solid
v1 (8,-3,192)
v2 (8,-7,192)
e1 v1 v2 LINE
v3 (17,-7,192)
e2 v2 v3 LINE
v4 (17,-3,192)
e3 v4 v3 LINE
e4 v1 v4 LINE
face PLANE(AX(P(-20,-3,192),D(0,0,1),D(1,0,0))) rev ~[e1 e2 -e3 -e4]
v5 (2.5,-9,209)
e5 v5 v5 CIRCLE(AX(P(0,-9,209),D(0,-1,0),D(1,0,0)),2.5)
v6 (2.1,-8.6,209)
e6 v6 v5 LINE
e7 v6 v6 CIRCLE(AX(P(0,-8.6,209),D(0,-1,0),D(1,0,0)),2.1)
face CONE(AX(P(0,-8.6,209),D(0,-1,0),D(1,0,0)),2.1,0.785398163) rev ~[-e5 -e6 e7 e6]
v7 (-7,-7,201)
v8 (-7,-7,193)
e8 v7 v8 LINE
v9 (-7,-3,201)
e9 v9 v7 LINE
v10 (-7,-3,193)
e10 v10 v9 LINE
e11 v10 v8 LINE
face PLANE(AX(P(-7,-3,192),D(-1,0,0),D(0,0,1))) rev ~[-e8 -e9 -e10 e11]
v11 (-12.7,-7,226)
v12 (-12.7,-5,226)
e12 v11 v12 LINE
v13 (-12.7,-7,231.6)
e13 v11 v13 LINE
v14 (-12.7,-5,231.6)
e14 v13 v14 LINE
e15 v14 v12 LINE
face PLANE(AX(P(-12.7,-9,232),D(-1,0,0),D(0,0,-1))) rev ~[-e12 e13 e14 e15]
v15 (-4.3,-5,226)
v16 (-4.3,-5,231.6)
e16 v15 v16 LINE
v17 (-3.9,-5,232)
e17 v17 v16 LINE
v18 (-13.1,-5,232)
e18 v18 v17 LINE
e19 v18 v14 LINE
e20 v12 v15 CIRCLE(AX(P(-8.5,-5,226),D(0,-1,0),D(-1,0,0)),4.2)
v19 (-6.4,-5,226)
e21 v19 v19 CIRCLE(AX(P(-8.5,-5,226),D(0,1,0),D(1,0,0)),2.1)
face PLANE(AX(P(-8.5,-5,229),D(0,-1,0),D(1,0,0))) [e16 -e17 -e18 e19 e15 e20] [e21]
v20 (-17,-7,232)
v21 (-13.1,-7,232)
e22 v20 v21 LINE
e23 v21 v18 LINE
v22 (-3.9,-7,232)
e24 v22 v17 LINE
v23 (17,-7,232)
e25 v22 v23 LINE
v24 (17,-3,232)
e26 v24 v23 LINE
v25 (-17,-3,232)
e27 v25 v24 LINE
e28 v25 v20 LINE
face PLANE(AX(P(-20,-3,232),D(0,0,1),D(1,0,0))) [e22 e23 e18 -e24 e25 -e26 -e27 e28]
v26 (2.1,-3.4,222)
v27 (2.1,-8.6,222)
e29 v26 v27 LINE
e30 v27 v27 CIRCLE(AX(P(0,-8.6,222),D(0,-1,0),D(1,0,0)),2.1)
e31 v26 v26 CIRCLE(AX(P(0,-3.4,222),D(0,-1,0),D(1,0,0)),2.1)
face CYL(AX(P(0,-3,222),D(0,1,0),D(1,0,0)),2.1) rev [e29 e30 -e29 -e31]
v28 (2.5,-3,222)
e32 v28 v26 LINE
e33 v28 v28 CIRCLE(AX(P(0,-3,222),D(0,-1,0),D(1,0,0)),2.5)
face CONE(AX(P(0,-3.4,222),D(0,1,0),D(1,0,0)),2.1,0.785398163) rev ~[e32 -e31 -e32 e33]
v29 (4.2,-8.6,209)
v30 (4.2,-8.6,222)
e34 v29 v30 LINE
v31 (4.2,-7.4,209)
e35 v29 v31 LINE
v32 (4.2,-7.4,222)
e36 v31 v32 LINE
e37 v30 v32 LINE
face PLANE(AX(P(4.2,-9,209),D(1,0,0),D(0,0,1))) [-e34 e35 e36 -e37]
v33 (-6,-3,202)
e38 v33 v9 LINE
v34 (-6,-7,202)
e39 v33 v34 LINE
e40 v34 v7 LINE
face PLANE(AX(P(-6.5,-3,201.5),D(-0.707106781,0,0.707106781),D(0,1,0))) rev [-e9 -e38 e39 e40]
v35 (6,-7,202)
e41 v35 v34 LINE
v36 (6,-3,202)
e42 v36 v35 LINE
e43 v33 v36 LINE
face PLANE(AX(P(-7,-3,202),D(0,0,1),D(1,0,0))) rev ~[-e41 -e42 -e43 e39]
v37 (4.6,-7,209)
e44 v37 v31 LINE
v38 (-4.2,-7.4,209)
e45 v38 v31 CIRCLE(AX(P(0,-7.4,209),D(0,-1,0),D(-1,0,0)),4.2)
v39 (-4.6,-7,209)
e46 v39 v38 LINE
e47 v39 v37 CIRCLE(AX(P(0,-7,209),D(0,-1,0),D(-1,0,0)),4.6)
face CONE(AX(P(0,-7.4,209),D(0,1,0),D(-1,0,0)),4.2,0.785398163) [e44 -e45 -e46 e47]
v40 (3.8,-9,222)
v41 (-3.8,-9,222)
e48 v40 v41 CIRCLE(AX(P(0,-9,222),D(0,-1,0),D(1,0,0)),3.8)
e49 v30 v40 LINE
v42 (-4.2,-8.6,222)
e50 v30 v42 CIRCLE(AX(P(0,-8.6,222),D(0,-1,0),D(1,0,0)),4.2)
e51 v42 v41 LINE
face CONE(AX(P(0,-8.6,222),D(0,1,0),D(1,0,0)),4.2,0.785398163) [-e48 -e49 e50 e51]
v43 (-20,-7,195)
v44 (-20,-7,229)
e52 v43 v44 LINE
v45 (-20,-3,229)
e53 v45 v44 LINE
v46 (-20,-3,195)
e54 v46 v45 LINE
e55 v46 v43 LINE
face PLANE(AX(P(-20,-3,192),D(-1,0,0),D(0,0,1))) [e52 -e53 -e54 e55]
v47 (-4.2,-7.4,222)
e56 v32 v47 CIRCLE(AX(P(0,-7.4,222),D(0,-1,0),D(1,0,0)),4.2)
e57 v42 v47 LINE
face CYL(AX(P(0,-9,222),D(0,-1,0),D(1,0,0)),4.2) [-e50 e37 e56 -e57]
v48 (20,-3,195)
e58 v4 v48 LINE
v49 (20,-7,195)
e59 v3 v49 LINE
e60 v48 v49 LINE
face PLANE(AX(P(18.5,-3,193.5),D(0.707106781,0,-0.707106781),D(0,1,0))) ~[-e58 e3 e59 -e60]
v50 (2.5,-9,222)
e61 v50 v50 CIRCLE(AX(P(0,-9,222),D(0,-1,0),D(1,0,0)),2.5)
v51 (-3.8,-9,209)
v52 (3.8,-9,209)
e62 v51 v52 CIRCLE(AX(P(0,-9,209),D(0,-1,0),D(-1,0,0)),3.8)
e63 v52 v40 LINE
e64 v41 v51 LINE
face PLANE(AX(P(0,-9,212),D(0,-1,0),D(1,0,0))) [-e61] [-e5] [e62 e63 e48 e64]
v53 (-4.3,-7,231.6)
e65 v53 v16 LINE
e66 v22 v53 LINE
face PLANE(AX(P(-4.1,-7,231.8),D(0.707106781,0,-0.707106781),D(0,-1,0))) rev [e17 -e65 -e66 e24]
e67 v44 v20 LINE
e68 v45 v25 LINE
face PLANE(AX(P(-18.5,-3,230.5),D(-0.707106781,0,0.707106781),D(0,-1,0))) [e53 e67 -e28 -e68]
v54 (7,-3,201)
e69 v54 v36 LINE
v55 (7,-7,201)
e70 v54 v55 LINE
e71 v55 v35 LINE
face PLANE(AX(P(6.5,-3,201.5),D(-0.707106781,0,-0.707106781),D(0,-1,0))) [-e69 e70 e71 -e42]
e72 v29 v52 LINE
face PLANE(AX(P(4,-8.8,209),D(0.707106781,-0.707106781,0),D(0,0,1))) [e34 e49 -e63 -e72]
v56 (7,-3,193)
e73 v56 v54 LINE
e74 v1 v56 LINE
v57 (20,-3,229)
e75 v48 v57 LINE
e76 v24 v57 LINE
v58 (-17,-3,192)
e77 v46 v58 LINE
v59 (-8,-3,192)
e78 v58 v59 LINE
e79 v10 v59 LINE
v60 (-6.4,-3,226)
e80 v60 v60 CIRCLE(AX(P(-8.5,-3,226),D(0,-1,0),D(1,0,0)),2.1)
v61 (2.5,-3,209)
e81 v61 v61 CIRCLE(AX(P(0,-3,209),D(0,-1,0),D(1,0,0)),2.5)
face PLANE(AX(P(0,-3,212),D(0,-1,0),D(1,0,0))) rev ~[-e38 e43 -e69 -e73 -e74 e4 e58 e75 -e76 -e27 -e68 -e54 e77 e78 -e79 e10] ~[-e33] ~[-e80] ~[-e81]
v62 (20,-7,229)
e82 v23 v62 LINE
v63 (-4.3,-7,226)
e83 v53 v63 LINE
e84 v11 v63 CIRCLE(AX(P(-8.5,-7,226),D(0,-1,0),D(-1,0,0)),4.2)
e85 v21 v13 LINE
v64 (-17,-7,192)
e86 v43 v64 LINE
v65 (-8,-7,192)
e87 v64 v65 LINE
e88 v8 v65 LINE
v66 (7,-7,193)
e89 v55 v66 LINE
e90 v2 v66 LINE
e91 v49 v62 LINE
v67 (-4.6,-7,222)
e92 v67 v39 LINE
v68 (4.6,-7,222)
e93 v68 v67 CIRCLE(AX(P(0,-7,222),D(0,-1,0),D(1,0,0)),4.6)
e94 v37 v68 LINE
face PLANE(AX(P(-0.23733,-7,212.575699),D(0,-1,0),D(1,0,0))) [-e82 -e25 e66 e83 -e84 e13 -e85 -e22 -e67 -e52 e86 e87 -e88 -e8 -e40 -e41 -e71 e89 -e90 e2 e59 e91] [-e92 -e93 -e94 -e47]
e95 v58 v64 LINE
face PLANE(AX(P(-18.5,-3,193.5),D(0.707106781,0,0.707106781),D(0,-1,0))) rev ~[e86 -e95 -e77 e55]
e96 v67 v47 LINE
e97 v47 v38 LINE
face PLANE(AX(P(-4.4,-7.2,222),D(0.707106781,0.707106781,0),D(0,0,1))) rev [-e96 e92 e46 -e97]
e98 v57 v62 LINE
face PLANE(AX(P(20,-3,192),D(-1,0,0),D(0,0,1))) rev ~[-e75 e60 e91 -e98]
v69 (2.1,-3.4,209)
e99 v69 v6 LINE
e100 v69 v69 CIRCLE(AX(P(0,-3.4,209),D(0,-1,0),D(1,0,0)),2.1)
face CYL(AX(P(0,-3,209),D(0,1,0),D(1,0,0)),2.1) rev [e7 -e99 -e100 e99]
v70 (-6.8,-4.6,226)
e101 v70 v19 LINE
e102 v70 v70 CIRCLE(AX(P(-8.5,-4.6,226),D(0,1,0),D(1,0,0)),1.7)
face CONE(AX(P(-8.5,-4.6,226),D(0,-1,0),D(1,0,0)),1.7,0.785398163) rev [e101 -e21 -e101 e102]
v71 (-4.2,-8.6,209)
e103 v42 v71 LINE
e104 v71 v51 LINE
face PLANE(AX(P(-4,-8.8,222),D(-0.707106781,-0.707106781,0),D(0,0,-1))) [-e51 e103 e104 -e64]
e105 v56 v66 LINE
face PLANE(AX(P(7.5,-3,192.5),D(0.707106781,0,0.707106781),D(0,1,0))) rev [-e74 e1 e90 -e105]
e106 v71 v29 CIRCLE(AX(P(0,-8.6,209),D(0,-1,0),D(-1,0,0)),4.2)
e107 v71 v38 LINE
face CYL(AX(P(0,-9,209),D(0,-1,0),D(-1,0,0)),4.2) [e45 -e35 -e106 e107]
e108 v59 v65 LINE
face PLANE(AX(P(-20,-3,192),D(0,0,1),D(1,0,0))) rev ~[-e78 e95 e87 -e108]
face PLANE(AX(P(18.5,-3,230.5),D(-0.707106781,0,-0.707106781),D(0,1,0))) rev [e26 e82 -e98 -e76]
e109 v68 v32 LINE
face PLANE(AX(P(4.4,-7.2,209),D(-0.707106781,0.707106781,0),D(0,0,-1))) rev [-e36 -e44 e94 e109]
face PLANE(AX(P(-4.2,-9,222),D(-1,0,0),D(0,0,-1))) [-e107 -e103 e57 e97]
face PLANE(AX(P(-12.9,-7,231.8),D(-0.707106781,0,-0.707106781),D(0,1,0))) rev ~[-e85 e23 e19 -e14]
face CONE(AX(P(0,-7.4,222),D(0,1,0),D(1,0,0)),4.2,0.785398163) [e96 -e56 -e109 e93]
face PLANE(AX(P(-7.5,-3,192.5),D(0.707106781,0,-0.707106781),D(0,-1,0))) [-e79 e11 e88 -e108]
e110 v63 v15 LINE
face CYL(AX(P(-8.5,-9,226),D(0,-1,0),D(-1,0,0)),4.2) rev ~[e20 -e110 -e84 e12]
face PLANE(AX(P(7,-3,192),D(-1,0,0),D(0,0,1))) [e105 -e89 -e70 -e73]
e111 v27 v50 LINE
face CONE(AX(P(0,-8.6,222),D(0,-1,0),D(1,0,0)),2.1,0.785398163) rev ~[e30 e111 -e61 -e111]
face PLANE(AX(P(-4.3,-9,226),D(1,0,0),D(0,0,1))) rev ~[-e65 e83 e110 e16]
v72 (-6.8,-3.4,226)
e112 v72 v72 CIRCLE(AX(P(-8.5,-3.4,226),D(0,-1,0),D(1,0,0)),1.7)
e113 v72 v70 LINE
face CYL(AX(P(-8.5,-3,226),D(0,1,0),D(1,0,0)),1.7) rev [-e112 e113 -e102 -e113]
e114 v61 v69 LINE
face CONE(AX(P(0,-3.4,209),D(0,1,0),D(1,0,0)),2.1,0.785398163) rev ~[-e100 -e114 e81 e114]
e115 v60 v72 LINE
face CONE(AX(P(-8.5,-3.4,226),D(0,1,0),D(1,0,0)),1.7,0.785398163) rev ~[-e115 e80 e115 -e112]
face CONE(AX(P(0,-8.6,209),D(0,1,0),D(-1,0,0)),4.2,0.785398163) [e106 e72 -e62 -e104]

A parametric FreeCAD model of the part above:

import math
import FreeCAD as App
import Part
import Sketcher
Q = App.Units.Quantity


def edges_at(feature, points):
    """Names of the edges that pass closest to the given points."""
    edges = feature.Shape.Edges
    near = lambda p: min(range(len(edges)), key=lambda i: edges[i].distToShape(Part.Vertex(*p))[0])
    return sorted({f"Edge{near(p) + 1}" for p in points})


def add_polygon(sketch, points):
    """Adds a closed chain of lines whose ends are joined by coincident constraints."""
    first, n = sketch.GeometryCount, len(points)
    for a, b in zip(points, points[1:] + points[:1]):
        sketch.addGeometry(Part.LineSegment(App.Vector(*a, 0), App.Vector(*b, 0)), False)
    for i in range(n):
        sketch.addConstraint(Sketcher.Constraint("Coincident", first + i, 2, first + (i + 1) % n, 1))

doc = App.newDocument("Part")
params = doc.addObject("Spreadsheet::Sheet", "Params")
for row, (alias, value) in enumerate([
    ("sketch1_diameter", "4.2 mm"),
    ("sketch1_diameter2", "3.4 mm"),
    ("sketch1_width", "40 mm"),
    ("pad1_length", "6 mm"),
    ("chamfer_size", "3 mm"),
    ("sketch2_radius", "4.2 mm"),
    ("sketch2_height", "6 mm"),
    ("pocket1_length", "4 mm"),
    ("sketch3_radius", "4.2 mm"),
    ("sketch3_height", "13 mm"),
    ("pocket2_length", "2 mm"),
    ("chamfer2_size", "0.4 mm"),
    ("sketch4_width", "14 mm"),
    ("sketch4_height", "10 mm"),
    ("chamfer3_size", "1 mm"),
], start=1):
    params.set(f"A{row}", alias)
    params.set(f"B{row}", "=" + value)
    params.setAlias(f"B{row}", alias)

body = doc.addObject("PartDesign::Body", "Body")

# Sketch on XZ plane
sketch1 = body.newObject("Sketcher::SketchObject", "Sketch")
sketch1.AttachmentSupport = (doc.getObject("XZ_Plane"), [""])
sketch1.MapMode = "FlatFace"
add_polygon(sketch1, [(-20, 40), (-20, 0), (20, 0), (20, 40)])  # lines 0-3
sketch1.addGeometry(Part.Circle(App.Vector(0, 17, 0), App.Vector(0, 0, 1), 2.1), False)  # 4
sketch1.addGeometry(Part.Circle(App.Vector(-8.5, 34, 0), App.Vector(0, 0, 1), 1.7), False)  # 5
sketch1.addGeometry(Part.Circle(App.Vector(0, 30, 0), App.Vector(0, 0, 1), 2.1), False)  # 6
sketch1.addConstraint([
    Sketcher.Constraint("Vertical", 0),
    Sketcher.Constraint("Horizontal", 1),
    Sketcher.Constraint("Vertical", 2),
    Sketcher.Constraint("Horizontal", 3),
    Sketcher.Constraint("Equal", 4, 6),
    Sketcher.Constraint("Symmetric", 0, 2, 1, 2, -1, 1),
    Sketcher.Constraint("PointOnObject", 4, 3, -2),
    Sketcher.Constraint("PointOnObject", 6, 3, -2),
    Sketcher.Constraint("Equal", 3, 0),
    Sketcher.Constraint("Diameter", 4, Q("4.2 mm")),
    Sketcher.Constraint("Diameter", 5, Q("3.4 mm")),
    Sketcher.Constraint("DistanceX", 1, 1, 1, 2, Q("40 mm")),
    Sketcher.Constraint("DistanceY", -1, 1, 4, 3, Q("17 mm")),
    Sketcher.Constraint("DistanceY", -1, 1, 5, 3, Q("34 mm")),
    Sketcher.Constraint("DistanceY", -1, 1, 6, 3, Q("30 mm")),
    Sketcher.Constraint("DistanceX", 5, 3, -1, 1, Q("8.5 mm")),
])
sketch1.setExpression("Constraints[13]", "Params.sketch1_diameter")
sketch1.setExpression("Constraints[14]", "Params.sketch1_diameter2")
sketch1.setExpression("Constraints[15]", "Params.sketch1_width")
pad1 = body.newObject("PartDesign::Pad", "Pad")
pad1.Profile = sketch1
pad1.setExpression("Length", "Params.pad1_length")
doc.recompute()

chamfer = body.newObject("PartDesign::Chamfer", "Chamfer")
chamfer.Base = (pad1, edges_at(pad1, [
    (-20, -3, 40),
    (20, -3, 40),
    (20, -3, 0),
    (-20, -3, 0),
]))
chamfer.setExpression("Size", "Params.chamfer_size")

# Sketch on XZ plane
sketch2 = body.newObject("Sketcher::SketchObject", "Sketch001")
sketch2.AttachmentSupport = (doc.getObject("XZ_Plane"), [""])
sketch2.MapMode = "FlatFace"
sketch2.AttachmentOffset = App.Placement(App.Vector(0, 0, 6), App.Rotation())
sketch2.addGeometry([
    Part.ArcOfCircle(Part.Circle(App.Vector(-8.5, 34, 0), App.Vector(0, 0, 1), 4.2), math.radians(180), math.radians(360)),
    Part.LineSegment(App.Vector(-4.3, 34, 0), App.Vector(-4.3, 40, 0)),
    Part.ArcOfCircle(Part.Circle(App.Vector(-8.5, 40, 0), App.Vector(0, 0, 1), 4.2), math.radians(0), math.radians(180)),
    Part.LineSegment(App.Vector(-12.7, 40, 0), App.Vector(-12.7, 34, 0)),
], False)
sketch2.addConstraint([
    Sketcher.Constraint("Tangent", 0, 2, 1, 1),
    Sketcher.Constraint("Tangent", 1, 2, 2, 1),
    Sketcher.Constraint("Tangent", 2, 2, 3, 1),
    Sketcher.Constraint("Tangent", 3, 2, 0, 1),
    Sketcher.Constraint("Vertical", 1),
    Sketcher.Constraint("Vertical", 3),
    Sketcher.Constraint("Radius", 0, Q("4.2 mm")),
    Sketcher.Constraint("DistanceY", 1, 1, 1, 2, Q("6 mm")),
    Sketcher.Constraint("DistanceY", -1, 1, 0, 3, Q("34 mm")),
    Sketcher.Constraint("DistanceX", 0, 3, -1, 1, Q("8.5 mm")),
])
sketch2.setExpression("Constraints[6]", "Params.sketch2_radius")
sketch2.setExpression("Constraints[7]", "Params.sketch2_height")
pocket1 = body.newObject("PartDesign::Pocket", "Pocket")
pocket1.Profile = sketch2
pocket1.setExpression("Length", "Params.pocket1_length")

# Sketch on XZ plane
sketch3 = body.newObject("Sketcher::SketchObject", "Sketch002")
sketch3.AttachmentSupport = (doc.getObject("XZ_Plane"), [""])
sketch3.MapMode = "FlatFace"
sketch3.AttachmentOffset = App.Placement(App.Vector(0, 0, 6), App.Rotation())
add_polygon(sketch3, [(-22.7, 43.5), (-22.7, -2.4), (22.2, -2.4), (22.2, 43.5)])  # lines 0-3
sketch3.addGeometry(Part.ArcOfCircle(Part.Circle(App.Vector(0, 30, 0), App.Vector(0, 0, 1), 4.2), math.radians(0), math.radians(180)), False)  # 4
sketch3.addGeometry(Part.LineSegment(App.Vector(4.2, 30, 0), App.Vector(4.2, 17, 0)), False)  # 5
sketch3.addGeometry(Part.ArcOfCircle(Part.Circle(App.Vector(0, 17, 0), App.Vector(0, 0, 1), 4.2), math.radians(180), math.radians(360)), False)  # 6
sketch3.addGeometry(Part.LineSegment(App.Vector(-4.2, 17, 0), App.Vector(-4.2, 30, 0)), False)  # 7
sketch3.addConstraint([
    Sketcher.Constraint("Tangent", 4, 1, 5, 1),
    Sketcher.Constraint("Tangent", 5, 2, 6, 2),
    Sketcher.Constraint("Tangent", 6, 1, 7, 1),
    Sketcher.Constraint("Tangent", 7, 2, 4, 2),
    Sketcher.Constraint("Vertical", 0),
    Sketcher.Constraint("Horizontal", 1),
    Sketcher.Constraint("Vertical", 2),
    Sketcher.Constraint("Horizontal", 3),
    Sketcher.Constraint("Vertical", 5),
    Sketcher.Constraint("Vertical", 7),
    Sketcher.Constraint("PointOnObject", 4, 3, -2),
    Sketcher.Constraint("Radius", 4, Q("4.2 mm")),
    Sketcher.Constraint("DistanceY", 5, 2, 5, 1, Q("13 mm")),
    Sketcher.Constraint("DistanceY", -1, 1, 4, 3, Q("30 mm")),
    Sketcher.Constraint("DistanceX", 1, 1, 1, 2, Q("44.906031 mm")),
    Sketcher.Constraint("DistanceY", 0, 2, 0, 1, Q("45.853912 mm")),
    Sketcher.Constraint("DistanceX", 0, 2, -1, 1, Q("22.690345 mm")),
    Sketcher.Constraint("DistanceY", 0, 2, -1, 1, Q("2.351257 mm")),
])
sketch3.setExpression("Constraints[15]", "Params.sketch3_radius")
sketch3.setExpression("Constraints[16]", "Params.sketch3_height")
pocket2 = body.newObject("PartDesign::Pocket", "Pocket001")
pocket2.Profile = sketch3
pocket2.setExpression("Length", "Params.pocket2_length")
doc.recompute()

chamfer2 = body.newObject("PartDesign::Chamfer", "Chamfer001")
chamfer2.Base = (pocket2, edges_at(pocket2, [
    (-10.2, -2, 34),
    (-2.1, -6, 30),
    (-2.1, -6, 17),
    (-2.1, 0, 17),
    (-2.1, 0, 30),
    (-10.2, 0, 34),
    (0, -6, 34.2),
    (0, -4, 34.2),
    (-4.3, -3, 40),
    (-12.7, -3, 40),
]))
chamfer2.setExpression("Size", "Params.chamfer2_size")

# Sketch on XZ plane
sketch4 = body.newObject("Sketcher::SketchObject", "Sketch003")
sketch4.AttachmentSupport = (doc.getObject("XZ_Plane"), [""])
sketch4.MapMode = "FlatFace"
add_polygon(sketch4, [(-7, 10), (-7, 0), (7, 0), (7, 10)])  # lines 0-3
sketch4.addConstraint([
    Sketcher.Constraint("Vertical", 0),
    Sketcher.Constraint("Horizontal", 1),
    Sketcher.Constraint("Vertical", 2),
    Sketcher.Constraint("Horizontal", 3),
    Sketcher.Constraint("Symmetric", 0, 2, 1, 2, -1, 1),
    Sketcher.Constraint("DistanceX", 1, 1, 1, 2, Q("14 mm")),
    Sketcher.Constraint("DistanceY", 0, 2, 0, 1, Q("10 mm")),
])
sketch4.setExpression("Constraints[9]", "Params.sketch4_width")
sketch4.setExpression("Constraints[10]", "Params.sketch4_height")
pocket3 = body.newObject("PartDesign::Pocket", "Pocket002")
pocket3.Profile = sketch4
pocket3.Type = "ThroughAll"
pocket3.Reversed = True
doc.recompute()

chamfer3 = body.newObject("PartDesign::Chamfer", "Chamfer002")
chamfer3.Base = (pocket3, edges_at(pocket3, [
    (7, -2, 10),
    (-7, -2, 10),
    (7, -2, 0),
    (-7, -2, 0),
]))
chamfer3.setExpression("Size", "Params.chamfer3_size")
body2 = doc.addObject("PartDesign::Body", "Body001")
doc.recompute()

body.Placement = App.Placement(App.Vector(0, -3, 192), App.Rotation(App.Vector(0, 0, 1), 0))
boolean = body2.newObject("PartDesign::Boolean", "Boolean")
boolean.Type = "Fuse"
boolean.addObjects([body])

doc.recompute()
